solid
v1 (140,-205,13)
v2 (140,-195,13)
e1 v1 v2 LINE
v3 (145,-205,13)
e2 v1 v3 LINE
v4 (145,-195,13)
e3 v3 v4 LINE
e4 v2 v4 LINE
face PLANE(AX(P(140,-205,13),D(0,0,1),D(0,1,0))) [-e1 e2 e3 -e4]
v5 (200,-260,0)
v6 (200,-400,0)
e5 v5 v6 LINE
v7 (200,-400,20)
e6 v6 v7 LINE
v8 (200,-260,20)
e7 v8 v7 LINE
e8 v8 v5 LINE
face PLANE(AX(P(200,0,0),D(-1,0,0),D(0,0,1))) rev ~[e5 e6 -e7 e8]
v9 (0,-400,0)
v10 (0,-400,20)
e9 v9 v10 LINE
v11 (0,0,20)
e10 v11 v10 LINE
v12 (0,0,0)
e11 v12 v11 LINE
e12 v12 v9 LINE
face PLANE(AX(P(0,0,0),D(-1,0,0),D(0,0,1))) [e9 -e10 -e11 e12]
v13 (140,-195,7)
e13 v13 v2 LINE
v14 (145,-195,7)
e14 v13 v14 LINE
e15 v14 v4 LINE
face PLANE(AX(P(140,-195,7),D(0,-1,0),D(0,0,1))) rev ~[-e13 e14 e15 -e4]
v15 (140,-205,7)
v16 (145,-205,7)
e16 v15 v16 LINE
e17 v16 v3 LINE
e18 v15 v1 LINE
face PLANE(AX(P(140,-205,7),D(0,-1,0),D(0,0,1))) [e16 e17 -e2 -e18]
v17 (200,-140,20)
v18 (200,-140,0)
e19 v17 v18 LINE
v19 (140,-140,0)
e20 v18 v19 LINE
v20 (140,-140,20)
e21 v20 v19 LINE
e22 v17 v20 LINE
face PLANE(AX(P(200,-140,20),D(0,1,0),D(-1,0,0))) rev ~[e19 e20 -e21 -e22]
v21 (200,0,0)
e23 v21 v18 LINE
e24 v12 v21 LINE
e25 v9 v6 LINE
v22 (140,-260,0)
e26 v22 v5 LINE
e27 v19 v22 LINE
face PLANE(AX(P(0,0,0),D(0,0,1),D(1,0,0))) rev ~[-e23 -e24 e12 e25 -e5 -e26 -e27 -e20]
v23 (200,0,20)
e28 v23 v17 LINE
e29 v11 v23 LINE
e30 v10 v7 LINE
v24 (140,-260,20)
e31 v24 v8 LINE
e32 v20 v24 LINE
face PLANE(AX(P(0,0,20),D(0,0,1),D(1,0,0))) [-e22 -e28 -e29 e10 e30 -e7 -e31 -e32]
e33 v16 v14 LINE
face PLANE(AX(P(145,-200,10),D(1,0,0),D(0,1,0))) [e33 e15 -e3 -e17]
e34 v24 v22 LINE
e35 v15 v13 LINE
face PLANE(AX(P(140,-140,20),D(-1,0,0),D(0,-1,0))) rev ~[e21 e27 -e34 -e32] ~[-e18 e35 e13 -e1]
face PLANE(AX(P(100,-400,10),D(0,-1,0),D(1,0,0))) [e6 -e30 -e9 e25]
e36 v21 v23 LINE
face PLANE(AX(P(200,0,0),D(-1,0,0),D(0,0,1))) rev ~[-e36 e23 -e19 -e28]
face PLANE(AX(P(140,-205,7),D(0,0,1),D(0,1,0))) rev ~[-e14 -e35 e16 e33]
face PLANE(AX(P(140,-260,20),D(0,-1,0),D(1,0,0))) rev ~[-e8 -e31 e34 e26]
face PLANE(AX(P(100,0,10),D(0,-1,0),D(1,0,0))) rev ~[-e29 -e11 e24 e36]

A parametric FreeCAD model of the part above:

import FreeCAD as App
import Part
import Sketcher

V = App.Vector
Q = App.Units.Quantity

doc = App.newDocument("Part")
body = doc.addObject("PartDesign::Body", "Body")

sketch1 = doc.addObject("Sketcher::SketchObject", "Sketch")
body.addObject(sketch1)
sketch1.AttachmentSupport = (doc.XZ_Plane, [""])
sketch1.MapMode = "FlatFace"
sketch1.addGeometry(Part.LineSegment(V(0, 20, 0), V(0, 0, 0)), False)
sketch1.addGeometry(Part.LineSegment(V(0, 0, 0), V(200, 0, 0)), False)
sketch1.addGeometry(Part.LineSegment(V(200, 0, 0), V(200, 20, 0)), False)
sketch1.addGeometry(Part.LineSegment(V(200, 20, 0), V(0, 20, 0)), False)
sketch1.addConstraint(Sketcher.Constraint("Coincident", 0, 2, 1, 1))
sketch1.addConstraint(Sketcher.Constraint("Coincident", 1, 2, 2, 1))
sketch1.addConstraint(Sketcher.Constraint("Coincident", 2, 2, 3, 1))
sketch1.addConstraint(Sketcher.Constraint("Coincident", 3, 2, 0, 1))
sketch1.addConstraint(Sketcher.Constraint("Vertical", 0))
sketch1.addConstraint(Sketcher.Constraint("Horizontal", 1))
sketch1.addConstraint(Sketcher.Constraint("Vertical", 2))
sketch1.addConstraint(Sketcher.Constraint("Horizontal", 3))
sketch1.addConstraint(Sketcher.Constraint("Coincident", 0, 2, -1, 1))
sketch1.addConstraint(Sketcher.Constraint("DistanceX", 1, 1, 1, 2, Q("200 mm")))
sketch1.addConstraint(Sketcher.Constraint("DistanceY", 0, 2, 0, 1, Q("20 mm")))
pad1 = doc.addObject("PartDesign::Pad", "Pad")
body.addObject(pad1)
pad1.Profile = sketch1
pad1.Length = 400

sketch2 = doc.addObject("Sketcher::SketchObject", "Sketch001")
body.addObject(sketch2)
sketch2.AttachmentSupport = (doc.XY_Plane, [""])
sketch2.MapMode = "FlatFace"
sketch2.AttachmentOffset = App.Placement(V(0, 0, 20), App.Rotation())
sketch2.addGeometry(Part.LineSegment(V(200, -260, 0), V(200, -140, 0)), False)
sketch2.addGeometry(Part.LineSegment(V(200, -140, 0), V(140, -140, 0)), False)
sketch2.addGeometry(Part.LineSegment(V(140, -140, 0), V(140, -260, 0)), False)
sketch2.addGeometry(Part.LineSegment(V(140, -260, 0), V(200, -260, 0)), False)
sketch2.addConstraint(Sketcher.Constraint("Coincident", 0, 2, 1, 1))
sketch2.addConstraint(Sketcher.Constraint("Coincident", 1, 2, 2, 1))
sketch2.addConstraint(Sketcher.Constraint("Coincident", 2, 2, 3, 1))
sketch2.addConstraint(Sketcher.Constraint("Coincident", 3, 2, 0, 1))
sketch2.addConstraint(Sketcher.Constraint("Vertical", 0))
sketch2.addConstraint(Sketcher.Constraint("Horizontal", 1))
sketch2.addConstraint(Sketcher.Constraint("Vertical", 2))
sketch2.addConstraint(Sketcher.Constraint("Horizontal", 3))
sketch2.addConstraint(Sketcher.Constraint("DistanceX", 1, 2, 1, 1, Q("60 mm")))
sketch2.addConstraint(Sketcher.Constraint("DistanceY", 0, 1, 0, 2, Q("120 mm")))
sketch2.addConstraint(Sketcher.Constraint("DistanceX", -1, 1, 0, 2, Q("200 mm")))
sketch2.addConstraint(Sketcher.Constraint("DistanceY", 0, 2, -1, 1, Q("140 mm")))
pocket1 = doc.addObject("PartDesign::Pocket", "Pocket")
body.addObject(pocket1)
pocket1.Profile = sketch2
pocket1.Length = 25

sketch3 = doc.addObject("Sketcher::SketchObject", "Sketch002")
body.addObject(sketch3)
sketch3.AttachmentSupport = (doc.YZ_Plane, [""])
sketch3.MapMode = "FlatFace"
sketch3.AttachmentOffset = App.Placement(V(0, 0, 140), App.Rotation())
sketch3.addGeometry(Part.LineSegment(V(-205, 13, 0), V(-205, 7, 0)), False)
sketch3.addGeometry(Part.LineSegment(V(-205, 7, 0), V(-195, 7, 0)), False)
sketch3.addGeometry(Part.LineSegment(V(-195, 7, 0), V(-195, 13, 0)), False)
sketch3.addGeometry(Part.LineSegment(V(-195, 13, 0), V(-205, 13, 0)), False)
sketch3.addConstraint(Sketcher.Constraint("Coincident", 0, 2, 1, 1))
sketch3.addConstraint(Sketcher.Constraint("Coincident", 1, 2, 2, 1))
sketch3.addConstraint(Sketcher.Constraint("Coincident", 2, 2, 3, 1))
sketch3.addConstraint(Sketcher.Constraint("Coincident", 3, 2, 0, 1))
sketch3.addConstraint(Sketcher.Constraint("Vertical", 0))
sketch3.addConstraint(Sketcher.Constraint("Horizontal", 1))
sketch3.addConstraint(Sketcher.Constraint("Vertical", 2))
sketch3.addConstraint(Sketcher.Constraint("Horizontal", 3))
sketch3.addConstraint(Sketcher.Constraint("DistanceX", 1, 1, 1, 2, Q("10 mm")))
sketch3.addConstraint(Sketcher.Constraint("DistanceY", 0, 2, 0, 1, Q("6 mm")))
sketch3.addConstraint(Sketcher.Constraint("DistanceX", 0, 2, -1, 1, Q("205 mm")))
sketch3.addConstraint(Sketcher.Constraint("DistanceY", -1, 1, 0, 2, Q("7 mm")))
pad2 = doc.addObject("PartDesign::Pad", "Pad001")
body.addObject(pad2)
pad2.Profile = sketch3
pad2.Length = 5

doc.recompute()
